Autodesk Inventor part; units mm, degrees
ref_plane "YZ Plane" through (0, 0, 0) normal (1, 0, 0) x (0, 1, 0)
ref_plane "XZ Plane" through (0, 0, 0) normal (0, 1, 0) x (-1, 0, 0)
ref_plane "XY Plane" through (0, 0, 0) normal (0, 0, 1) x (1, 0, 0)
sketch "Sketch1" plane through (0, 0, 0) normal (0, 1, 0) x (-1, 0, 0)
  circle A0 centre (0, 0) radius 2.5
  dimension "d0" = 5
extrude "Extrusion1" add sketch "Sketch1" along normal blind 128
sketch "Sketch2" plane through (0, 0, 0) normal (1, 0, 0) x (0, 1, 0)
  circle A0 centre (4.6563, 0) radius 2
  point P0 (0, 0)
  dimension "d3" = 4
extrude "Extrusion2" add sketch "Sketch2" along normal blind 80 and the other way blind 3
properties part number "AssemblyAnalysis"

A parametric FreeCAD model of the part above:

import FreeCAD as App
import Part
import Sketcher

V = App.Vector
Q = App.Units.Quantity

doc = App.newDocument("Part")
body = doc.addObject("PartDesign::Body", "Body")

# Sketch on XZ plane
sketch1 = body.newObject("Sketcher::SketchObject", "Sketch")
sketch1.AttachmentSupport = (doc.getObject("XZ_Plane"), [""])
sketch1.MapMode = "FlatFace"
sketch1.addGeometry(Part.Circle(V(0, 0, 0), V(0, 0, 1), 2.5), False)
sketch1.addConstraint([
    Sketcher.Constraint("Coincident", 0, 3, -1, 1),
    Sketcher.Constraint("Diameter", 0, Q("5 mm")),
])
pad1 = body.newObject("PartDesign::Pad", "Pad")
pad1.Profile = sketch1
pad1.Length = 128
pad1.Reversed = True

# Sketch on YZ plane
sketch2 = body.newObject("Sketcher::SketchObject", "Sketch001")
sketch2.AttachmentSupport = (doc.getObject("YZ_Plane"), [""])
sketch2.MapMode = "FlatFace"
sketch2.addGeometry(Part.Circle(V(4.7, 0, 0), V(0, 0, 1), 2), False)
sketch2.addConstraint([
    Sketcher.Constraint("PointOnObject", 0, 3, -1),
    Sketcher.Constraint("Diameter", 0, Q("4 mm")),
    Sketcher.Constraint("DistanceX", -1, 1, 0, 3, Q("4.6563 mm")),
])
pad2 = body.newObject("PartDesign::Pad", "Pad001")
pad2.Profile = sketch2
pad2.Type = "TwoLengths"
pad2.Length = 80
pad2.Length2 = 3

doc.recompute()
